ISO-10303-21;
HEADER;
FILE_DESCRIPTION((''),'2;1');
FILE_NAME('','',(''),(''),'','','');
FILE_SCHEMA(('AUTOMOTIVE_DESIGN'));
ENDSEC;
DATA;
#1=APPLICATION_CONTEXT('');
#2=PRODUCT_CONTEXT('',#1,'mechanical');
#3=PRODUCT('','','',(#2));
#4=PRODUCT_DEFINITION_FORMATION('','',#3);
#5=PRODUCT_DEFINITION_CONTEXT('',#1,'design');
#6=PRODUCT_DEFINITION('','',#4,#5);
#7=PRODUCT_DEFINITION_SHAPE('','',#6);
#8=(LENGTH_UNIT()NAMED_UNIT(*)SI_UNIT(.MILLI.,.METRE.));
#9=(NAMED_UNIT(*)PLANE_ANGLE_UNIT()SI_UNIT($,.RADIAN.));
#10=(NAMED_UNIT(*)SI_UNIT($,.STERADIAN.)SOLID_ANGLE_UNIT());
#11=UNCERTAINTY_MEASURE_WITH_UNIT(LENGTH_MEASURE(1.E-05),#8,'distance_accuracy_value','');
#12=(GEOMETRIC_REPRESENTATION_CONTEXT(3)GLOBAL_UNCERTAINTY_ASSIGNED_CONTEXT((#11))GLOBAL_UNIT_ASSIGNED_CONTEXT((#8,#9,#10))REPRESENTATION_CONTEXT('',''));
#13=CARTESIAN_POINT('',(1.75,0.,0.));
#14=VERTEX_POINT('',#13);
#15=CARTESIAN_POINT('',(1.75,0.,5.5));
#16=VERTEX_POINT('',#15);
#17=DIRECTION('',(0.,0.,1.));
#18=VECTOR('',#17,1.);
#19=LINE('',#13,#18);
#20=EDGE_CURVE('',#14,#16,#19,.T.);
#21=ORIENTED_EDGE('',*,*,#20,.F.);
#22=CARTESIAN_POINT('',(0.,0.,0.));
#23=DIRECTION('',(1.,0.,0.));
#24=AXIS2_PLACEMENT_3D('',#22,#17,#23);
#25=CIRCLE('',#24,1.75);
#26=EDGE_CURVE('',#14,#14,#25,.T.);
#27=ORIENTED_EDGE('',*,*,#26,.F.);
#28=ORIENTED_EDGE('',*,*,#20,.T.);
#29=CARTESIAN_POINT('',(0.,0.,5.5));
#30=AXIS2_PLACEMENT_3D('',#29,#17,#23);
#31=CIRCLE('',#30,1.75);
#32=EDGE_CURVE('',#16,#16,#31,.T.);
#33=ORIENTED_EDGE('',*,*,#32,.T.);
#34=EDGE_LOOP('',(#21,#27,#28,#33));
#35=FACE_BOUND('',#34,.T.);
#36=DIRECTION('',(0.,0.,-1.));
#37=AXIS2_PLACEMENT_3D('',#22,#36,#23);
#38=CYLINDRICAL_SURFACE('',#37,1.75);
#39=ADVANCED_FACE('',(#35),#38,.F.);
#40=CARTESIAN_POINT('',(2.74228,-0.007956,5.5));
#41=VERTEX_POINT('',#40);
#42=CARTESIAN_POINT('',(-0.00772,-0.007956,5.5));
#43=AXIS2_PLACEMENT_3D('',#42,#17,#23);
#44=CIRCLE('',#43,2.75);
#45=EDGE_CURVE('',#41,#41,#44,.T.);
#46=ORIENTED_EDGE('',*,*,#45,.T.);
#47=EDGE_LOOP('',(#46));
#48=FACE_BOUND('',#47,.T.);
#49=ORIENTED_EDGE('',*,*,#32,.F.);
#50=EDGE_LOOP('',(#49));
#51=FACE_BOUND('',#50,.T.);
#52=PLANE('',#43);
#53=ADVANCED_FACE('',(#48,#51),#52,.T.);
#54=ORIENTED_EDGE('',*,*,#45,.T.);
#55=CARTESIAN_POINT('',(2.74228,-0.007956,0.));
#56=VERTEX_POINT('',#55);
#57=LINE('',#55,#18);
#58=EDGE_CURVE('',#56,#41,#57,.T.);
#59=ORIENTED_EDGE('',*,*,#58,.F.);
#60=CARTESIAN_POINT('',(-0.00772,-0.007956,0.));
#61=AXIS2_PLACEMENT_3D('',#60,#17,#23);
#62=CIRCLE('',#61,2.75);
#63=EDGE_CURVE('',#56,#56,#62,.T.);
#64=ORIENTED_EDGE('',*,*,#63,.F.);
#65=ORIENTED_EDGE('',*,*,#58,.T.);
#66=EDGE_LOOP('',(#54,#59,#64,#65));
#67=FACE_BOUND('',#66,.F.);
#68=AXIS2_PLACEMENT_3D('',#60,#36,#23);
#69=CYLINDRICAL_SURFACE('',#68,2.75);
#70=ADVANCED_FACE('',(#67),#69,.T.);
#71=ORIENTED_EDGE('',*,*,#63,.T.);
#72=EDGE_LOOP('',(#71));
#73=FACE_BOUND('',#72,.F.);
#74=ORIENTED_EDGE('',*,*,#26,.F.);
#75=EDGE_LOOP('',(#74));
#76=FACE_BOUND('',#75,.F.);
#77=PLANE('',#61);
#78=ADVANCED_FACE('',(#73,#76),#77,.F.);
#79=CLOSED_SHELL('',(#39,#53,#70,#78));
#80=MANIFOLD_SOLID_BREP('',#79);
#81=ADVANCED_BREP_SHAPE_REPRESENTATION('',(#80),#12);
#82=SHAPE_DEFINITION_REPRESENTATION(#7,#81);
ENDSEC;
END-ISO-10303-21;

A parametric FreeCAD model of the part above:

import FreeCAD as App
import Part
import Sketcher

doc = App.newDocument("Part")
body = doc.addObject("PartDesign::Body", "Body")

# Sketch on XY plane
sketch1 = body.newObject("Sketcher::SketchObject", "Sketch")
sketch1.AttachmentSupport = (doc.getObject("XY_Plane"), [""])
sketch1.MapMode = "FlatFace"
sketch1.addGeometry([
    Part.Circle(App.Vector(-0.00772, -0.007956, 0), App.Vector(0, 0, 1), 2.75),
    Part.Circle(App.Vector(0, 0, 0), App.Vector(0, 0, 1), 1.75),
], False)
sketch1.addConstraint([
    Sketcher.Constraint("Coincident", 1, 3, -1, 1),
    Sketcher.Constraint("Diameter", 0, 5.5),
    Sketcher.Constraint("Diameter", 1, 3.5),
    Sketcher.Constraint("DistanceX", 0, 3, -1, 1, 0.00772),
    Sketcher.Constraint("DistanceY", 0, 3, -1, 1, 0.007956),
])
pad1 = body.newObject("PartDesign::Pad", "Pad")
pad1.Profile = sketch1
pad1.Length = 5.5

doc.recompute()
